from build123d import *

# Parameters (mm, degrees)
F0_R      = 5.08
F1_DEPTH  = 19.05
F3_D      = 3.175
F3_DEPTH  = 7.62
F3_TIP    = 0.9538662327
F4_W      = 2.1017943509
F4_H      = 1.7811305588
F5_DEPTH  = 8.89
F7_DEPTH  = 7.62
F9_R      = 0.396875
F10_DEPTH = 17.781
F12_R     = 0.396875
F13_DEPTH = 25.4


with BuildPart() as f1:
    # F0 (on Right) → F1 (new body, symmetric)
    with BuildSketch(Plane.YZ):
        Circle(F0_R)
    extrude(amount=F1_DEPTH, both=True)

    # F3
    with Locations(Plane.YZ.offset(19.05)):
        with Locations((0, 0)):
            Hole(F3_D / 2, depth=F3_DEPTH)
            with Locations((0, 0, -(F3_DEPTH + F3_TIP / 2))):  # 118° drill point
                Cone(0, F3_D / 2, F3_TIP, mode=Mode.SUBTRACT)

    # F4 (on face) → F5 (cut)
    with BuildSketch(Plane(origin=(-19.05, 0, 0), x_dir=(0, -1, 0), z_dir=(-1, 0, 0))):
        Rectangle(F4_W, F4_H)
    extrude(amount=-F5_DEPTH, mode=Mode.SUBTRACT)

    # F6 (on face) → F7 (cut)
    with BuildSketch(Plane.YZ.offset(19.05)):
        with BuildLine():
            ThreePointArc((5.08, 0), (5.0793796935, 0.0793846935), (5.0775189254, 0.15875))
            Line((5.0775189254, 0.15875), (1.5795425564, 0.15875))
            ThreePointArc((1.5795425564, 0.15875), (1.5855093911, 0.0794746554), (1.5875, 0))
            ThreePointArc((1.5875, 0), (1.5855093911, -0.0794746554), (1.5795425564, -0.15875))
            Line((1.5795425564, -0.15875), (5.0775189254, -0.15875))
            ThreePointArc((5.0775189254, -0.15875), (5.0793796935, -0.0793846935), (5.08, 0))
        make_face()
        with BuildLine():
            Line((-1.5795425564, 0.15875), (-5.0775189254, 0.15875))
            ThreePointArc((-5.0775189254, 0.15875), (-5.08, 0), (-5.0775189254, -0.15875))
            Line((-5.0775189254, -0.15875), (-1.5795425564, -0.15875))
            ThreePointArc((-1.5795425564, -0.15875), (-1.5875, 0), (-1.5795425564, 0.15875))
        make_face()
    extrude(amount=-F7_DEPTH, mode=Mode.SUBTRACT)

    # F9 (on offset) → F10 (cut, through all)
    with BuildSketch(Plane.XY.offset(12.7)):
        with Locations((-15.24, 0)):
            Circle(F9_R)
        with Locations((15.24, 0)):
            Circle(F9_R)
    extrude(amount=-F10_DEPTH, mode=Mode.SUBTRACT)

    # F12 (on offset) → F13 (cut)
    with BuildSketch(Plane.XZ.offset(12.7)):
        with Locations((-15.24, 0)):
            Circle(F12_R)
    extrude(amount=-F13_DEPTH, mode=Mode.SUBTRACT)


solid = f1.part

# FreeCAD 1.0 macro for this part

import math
import FreeCAD as App
import Part
import Sketcher
Q = App.Units.Quantity


def add_polygon(sketch, points):
    """Adds a closed chain of lines whose ends are joined by coincident constraints."""
    first, n = sketch.GeometryCount, len(points)
    for a, b in zip(points, points[1:] + points[:1]):
        sketch.addGeometry(Part.LineSegment(App.Vector(*a, 0), App.Vector(*b, 0)), False)
    for i in range(n):
        sketch.addConstraint(Sketcher.Constraint("Coincident", first + i, 2, first + (i + 1) % n, 1))

doc = App.newDocument("Part")
body = doc.addObject("PartDesign::Body", "Body")

# Sketch on YZ plane
sketch1 = body.newObject("Sketcher::SketchObject", "Sketch")
sketch1.AttachmentSupport = (doc.getObject("YZ_Plane"), [""])
sketch1.MapMode = "FlatFace"
sketch1.addGeometry(Part.Circle(App.Vector(0, 0, 0), App.Vector(0, 0, 1), 5), False)
sketch1.addConstraint(Sketcher.Constraint("Coincident", 0, 3, -1, 1))
sketch1.addConstraint(Sketcher.Constraint("Diameter", 0, Q("0.4 in")))
pad1 = body.newObject("PartDesign::Pad", "Pad")
pad1.Profile = sketch1
pad1.Length = Q("1.5 in")
pad1.Midplane = True

# Sketch on YZ plane
sketch2 = body.newObject("Sketcher::SketchObject", "Sketch001")
sketch2.AttachmentSupport = (doc.getObject("YZ_Plane"), [""])
sketch2.MapMode = "FlatFace"
sketch2.AttachmentOffset = App.Placement(App.Vector(0, 0, 0.75 * 25.4), App.Rotation())
sketch2.addGeometry(Part.Circle(App.Vector(0, 0, 0), App.Vector(0, 0, 1), 1.6), False)
sketch2.addConstraint(Sketcher.Constraint("Coincident", 0, 3, -1, 1))
sketch2.addConstraint(Sketcher.Constraint("Diameter", 0, Q("0.125 in")))
doc.recompute()
hole = body.newObject("PartDesign::Hole", "Hole")
hole.Profile = sketch2
hole.ThreadType = "None"
hole.Diameter = Q("0.125 in")
hole.DepthType = "Dimension"
hole.Depth = Q("0.3 in")
hole.DrillPoint = "Angled"
hole.DrillPointAngle = 118

# Sketch on YZ plane
sketch3 = body.newObject("Sketcher::SketchObject", "Sketch002")
sketch3.AttachmentSupport = (doc.getObject("YZ_Plane"), [""])
sketch3.MapMode = "FlatFace"
sketch3.AttachmentOffset = App.Placement(App.Vector(0, 0, -0.75 * 25.4), App.Rotation())
add_polygon(sketch3, [(1.1, 0.9), (1.1, -0.9), (-1.1, -0.9), (-1.1, 0.9)])  # lines 0-3
sketch3.addConstraint(Sketcher.Constraint("Vertical", 0))
sketch3.addConstraint(Sketcher.Constraint("Horizontal", 1))
sketch3.addConstraint(Sketcher.Constraint("Vertical", 2))
sketch3.addConstraint(Sketcher.Constraint("Horizontal", 3))
sketch3.addConstraint(Sketcher.Constraint("Symmetric", 0, 2, 2, 2, -1, 1))
sketch3.addConstraint(Sketcher.Constraint("DistanceY", 0, 2, 0, 1, 1.781131))
sketch3.addConstraint(Sketcher.Constraint("DistanceX", 1, 2, 1, 1, 2.101794))
pocket1 = body.newObject("PartDesign::Pocket", "Pocket")
pocket1.Profile = sketch3
pocket1.Length = Q("0.35 in")
pocket1.Reversed = True

# Sketch on YZ plane
sketch4 = body.newObject("Sketcher::SketchObject", "Sketch003")
sketch4.AttachmentSupport = (doc.getObject("YZ_Plane"), [""])
sketch4.MapMode = "FlatFace"
sketch4.AttachmentOffset = App.Placement(App.Vector(0, 0, 0.75 * 25.4), App.Rotation())
sketch4.addGeometry(Part.ArcOfCircle(Part.Circle(App.Vector(0, 0, 0), App.Vector(0, 0, 1), 5.08), math.radians(0), math.radians(1.79)), False)
sketch4.addGeometry(Part.LineSegment(App.Vector(5.08, 0.16, 0), App.Vector(1.58, 0.16, 0)), False)
sketch4.addGeometry(Part.ArcOfCircle(Part.Circle(App.Vector(0, 0, 0), App.Vector(0, 0, 1), 1.59), math.radians(0), math.radians(5.74)), False)
sketch4.addGeometry(Part.ArcOfCircle(Part.Circle(App.Vector(0, 0, 0), App.Vector(0, 0, 1), 1.59), math.radians(-5.74), math.radians(0)), False)
sketch4.addGeometry(Part.LineSegment(App.Vector(1.58, -0.16, 0), App.Vector(5.08, -0.16, 0)), False)
sketch4.addGeometry(Part.ArcOfCircle(Part.Circle(App.Vector(0, 0, 0), App.Vector(0, 0, 1), 5.08), math.radians(-1.79), math.radians(0)), False)
sketch4.addGeometry(Part.LineSegment(App.Vector(-1.58, 0.16, 0), App.Vector(-5.08, 0.16, 0)), False)
sketch4.addGeometry(Part.ArcOfCircle(Part.Circle(App.Vector(0, 0, 0), App.Vector(0, 0, 1), 5.08), math.radians(178.21), math.radians(181.79)), False)
sketch4.addGeometry(Part.LineSegment(App.Vector(-5.08, -0.16, 0), App.Vector(-1.58, -0.16, 0)), False)
sketch4.addGeometry(Part.ArcOfCircle(Part.Circle(App.Vector(0, 0, 0), App.Vector(0, 0, 1), 1.59), math.radians(174.26), math.radians(185.74)), False)
sketch4.addConstraint(Sketcher.Constraint("Coincident", 0, 2, 1, 1))
sketch4.addConstraint(Sketcher.Constraint("Coincident", 1, 2, 2, 2))
sketch4.addConstraint(Sketcher.Constraint("Tangent", 2, 1, 3, 2))
sketch4.addConstraint(Sketcher.Constraint("Coincident", 3, 1, 4, 1))
sketch4.addConstraint(Sketcher.Constraint("Coincident", 4, 2, 5, 1))
sketch4.addConstraint(Sketcher.Constraint("Tangent", 5, 2, 0, 1))
sketch4.addConstraint(Sketcher.Constraint("Coincident", 6, 2, 7, 1))
sketch4.addConstraint(Sketcher.Constraint("Coincident", 7, 2, 8, 1))
sketch4.addConstraint(Sketcher.Constraint("Coincident", 8, 2, 9, 2))
sketch4.addConstraint(Sketcher.Constraint("Coincident", 9, 1, 6, 1))
sketch4.addConstraint(Sketcher.Constraint("Horizontal", 1))
sketch4.addConstraint(Sketcher.Constraint("Horizontal", 4))
sketch4.addConstraint(Sketcher.Constraint("Horizontal", 6))
sketch4.addConstraint(Sketcher.Constraint("Horizontal", 8))
sketch4.addConstraint(Sketcher.Constraint("Coincident", 0, 3, -1, 1))
sketch4.addConstraint(Sketcher.Constraint("Coincident", 2, 3, -1, 1))
sketch4.addConstraint(Sketcher.Constraint("Coincident", 7, 3, -1, 1))
sketch4.addConstraint(Sketcher.Constraint("Coincident", 9, 3, -1, 1))
sketch4.addConstraint(Sketcher.Constraint("Equal", 2, 3))
sketch4.addConstraint(Sketcher.Constraint("Equal", 0, 5))
sketch4.addConstraint(Sketcher.Constraint("Equal", 5, 7))
sketch4.addConstraint(Sketcher.Constraint("Equal", 3, 9))
sketch4.addConstraint(Sketcher.Constraint("PointOnObject", 2, 1, -1))
sketch4.addConstraint(Sketcher.Constraint("PointOnObject", 5, 2, -1))
sketch4.addConstraint(Sketcher.Constraint("Horizontal", 1, 2, 6, 2))
sketch4.addConstraint(Sketcher.Constraint("Horizontal", 4, 2, 7, 2))
sketch4.addConstraint(Sketcher.Constraint("Vertical", 1, 2, 3, 1))
sketch4.addConstraint(Sketcher.Constraint("Radius", 0, Q("0.2 in")))
sketch4.addConstraint(Sketcher.Constraint("Radius", 2, Q("0.0625 in")))
sketch4.addConstraint(Sketcher.Constraint("DistanceY", 3, 1, 1, 2, Q("0.0125 in")))
pocket2 = body.newObject("PartDesign::Pocket", "Pocket001")
pocket2.Profile = sketch4
pocket2.Length = Q("0.3 in")

# Sketch on XY plane
sketch5 = body.newObject("Sketcher::SketchObject", "Sketch004")
sketch5.AttachmentSupport = (doc.getObject("XY_Plane"), [""])
sketch5.MapMode = "FlatFace"
sketch5.AttachmentOffset = App.Placement(App.Vector(0, 0, 0.5 * 25.4), App.Rotation())
sketch5.addGeometry(Part.Circle(App.Vector(-15.24, 0, 0), App.Vector(0, 0, 1), 0.4), False)
sketch5.addGeometry(Part.Circle(App.Vector(15.24, 0, 0), App.Vector(0, 0, 1), 0.4), False)
sketch5.addConstraint(Sketcher.Constraint("Equal", 0, 1))
sketch5.addConstraint(Sketcher.Constraint("Symmetric", 0, 3, 1, 3, -1, 1))
sketch5.addConstraint(Sketcher.Constraint("PointOnObject", 0, 3, -1))
sketch5.addConstraint(Sketcher.Constraint("Diameter", 0, Q("0.03125 in")))
sketch5.addConstraint(Sketcher.Constraint("DistanceX", 0, 3, -1, 1, Q("0.6 in")))
pocket3 = body.newObject("PartDesign::Pocket", "Pocket002")
pocket3.Profile = sketch5
pocket3.Type = "ThroughAll"

# Sketch on XZ plane
sketch6 = body.newObject("Sketcher::SketchObject", "Sketch005")
sketch6.AttachmentSupport = (doc.getObject("XZ_Plane"), [""])
sketch6.MapMode = "FlatFace"
sketch6.AttachmentOffset = App.Placement(App.Vector(0, 0, 0.5 * 25.4), App.Rotation())
sketch6.addGeometry(Part.Circle(App.Vector(-15.24, 0, 0), App.Vector(0, 0, 1), 0.4), False)
sketch6.addConstraint(Sketcher.Constraint("PointOnObject", 0, 3, -1))
sketch6.addConstraint(Sketcher.Constraint("Diameter", 0, Q("0.03125 in")))
sketch6.addConstraint(Sketcher.Constraint("DistanceX", 0, 3, -1, 1, Q("0.6 in")))
pocket4 = body.newObject("PartDesign::Pocket", "Pocket003")
pocket4.Profile = sketch6
pocket4.Length = Q("1 in")

doc.recompute()
